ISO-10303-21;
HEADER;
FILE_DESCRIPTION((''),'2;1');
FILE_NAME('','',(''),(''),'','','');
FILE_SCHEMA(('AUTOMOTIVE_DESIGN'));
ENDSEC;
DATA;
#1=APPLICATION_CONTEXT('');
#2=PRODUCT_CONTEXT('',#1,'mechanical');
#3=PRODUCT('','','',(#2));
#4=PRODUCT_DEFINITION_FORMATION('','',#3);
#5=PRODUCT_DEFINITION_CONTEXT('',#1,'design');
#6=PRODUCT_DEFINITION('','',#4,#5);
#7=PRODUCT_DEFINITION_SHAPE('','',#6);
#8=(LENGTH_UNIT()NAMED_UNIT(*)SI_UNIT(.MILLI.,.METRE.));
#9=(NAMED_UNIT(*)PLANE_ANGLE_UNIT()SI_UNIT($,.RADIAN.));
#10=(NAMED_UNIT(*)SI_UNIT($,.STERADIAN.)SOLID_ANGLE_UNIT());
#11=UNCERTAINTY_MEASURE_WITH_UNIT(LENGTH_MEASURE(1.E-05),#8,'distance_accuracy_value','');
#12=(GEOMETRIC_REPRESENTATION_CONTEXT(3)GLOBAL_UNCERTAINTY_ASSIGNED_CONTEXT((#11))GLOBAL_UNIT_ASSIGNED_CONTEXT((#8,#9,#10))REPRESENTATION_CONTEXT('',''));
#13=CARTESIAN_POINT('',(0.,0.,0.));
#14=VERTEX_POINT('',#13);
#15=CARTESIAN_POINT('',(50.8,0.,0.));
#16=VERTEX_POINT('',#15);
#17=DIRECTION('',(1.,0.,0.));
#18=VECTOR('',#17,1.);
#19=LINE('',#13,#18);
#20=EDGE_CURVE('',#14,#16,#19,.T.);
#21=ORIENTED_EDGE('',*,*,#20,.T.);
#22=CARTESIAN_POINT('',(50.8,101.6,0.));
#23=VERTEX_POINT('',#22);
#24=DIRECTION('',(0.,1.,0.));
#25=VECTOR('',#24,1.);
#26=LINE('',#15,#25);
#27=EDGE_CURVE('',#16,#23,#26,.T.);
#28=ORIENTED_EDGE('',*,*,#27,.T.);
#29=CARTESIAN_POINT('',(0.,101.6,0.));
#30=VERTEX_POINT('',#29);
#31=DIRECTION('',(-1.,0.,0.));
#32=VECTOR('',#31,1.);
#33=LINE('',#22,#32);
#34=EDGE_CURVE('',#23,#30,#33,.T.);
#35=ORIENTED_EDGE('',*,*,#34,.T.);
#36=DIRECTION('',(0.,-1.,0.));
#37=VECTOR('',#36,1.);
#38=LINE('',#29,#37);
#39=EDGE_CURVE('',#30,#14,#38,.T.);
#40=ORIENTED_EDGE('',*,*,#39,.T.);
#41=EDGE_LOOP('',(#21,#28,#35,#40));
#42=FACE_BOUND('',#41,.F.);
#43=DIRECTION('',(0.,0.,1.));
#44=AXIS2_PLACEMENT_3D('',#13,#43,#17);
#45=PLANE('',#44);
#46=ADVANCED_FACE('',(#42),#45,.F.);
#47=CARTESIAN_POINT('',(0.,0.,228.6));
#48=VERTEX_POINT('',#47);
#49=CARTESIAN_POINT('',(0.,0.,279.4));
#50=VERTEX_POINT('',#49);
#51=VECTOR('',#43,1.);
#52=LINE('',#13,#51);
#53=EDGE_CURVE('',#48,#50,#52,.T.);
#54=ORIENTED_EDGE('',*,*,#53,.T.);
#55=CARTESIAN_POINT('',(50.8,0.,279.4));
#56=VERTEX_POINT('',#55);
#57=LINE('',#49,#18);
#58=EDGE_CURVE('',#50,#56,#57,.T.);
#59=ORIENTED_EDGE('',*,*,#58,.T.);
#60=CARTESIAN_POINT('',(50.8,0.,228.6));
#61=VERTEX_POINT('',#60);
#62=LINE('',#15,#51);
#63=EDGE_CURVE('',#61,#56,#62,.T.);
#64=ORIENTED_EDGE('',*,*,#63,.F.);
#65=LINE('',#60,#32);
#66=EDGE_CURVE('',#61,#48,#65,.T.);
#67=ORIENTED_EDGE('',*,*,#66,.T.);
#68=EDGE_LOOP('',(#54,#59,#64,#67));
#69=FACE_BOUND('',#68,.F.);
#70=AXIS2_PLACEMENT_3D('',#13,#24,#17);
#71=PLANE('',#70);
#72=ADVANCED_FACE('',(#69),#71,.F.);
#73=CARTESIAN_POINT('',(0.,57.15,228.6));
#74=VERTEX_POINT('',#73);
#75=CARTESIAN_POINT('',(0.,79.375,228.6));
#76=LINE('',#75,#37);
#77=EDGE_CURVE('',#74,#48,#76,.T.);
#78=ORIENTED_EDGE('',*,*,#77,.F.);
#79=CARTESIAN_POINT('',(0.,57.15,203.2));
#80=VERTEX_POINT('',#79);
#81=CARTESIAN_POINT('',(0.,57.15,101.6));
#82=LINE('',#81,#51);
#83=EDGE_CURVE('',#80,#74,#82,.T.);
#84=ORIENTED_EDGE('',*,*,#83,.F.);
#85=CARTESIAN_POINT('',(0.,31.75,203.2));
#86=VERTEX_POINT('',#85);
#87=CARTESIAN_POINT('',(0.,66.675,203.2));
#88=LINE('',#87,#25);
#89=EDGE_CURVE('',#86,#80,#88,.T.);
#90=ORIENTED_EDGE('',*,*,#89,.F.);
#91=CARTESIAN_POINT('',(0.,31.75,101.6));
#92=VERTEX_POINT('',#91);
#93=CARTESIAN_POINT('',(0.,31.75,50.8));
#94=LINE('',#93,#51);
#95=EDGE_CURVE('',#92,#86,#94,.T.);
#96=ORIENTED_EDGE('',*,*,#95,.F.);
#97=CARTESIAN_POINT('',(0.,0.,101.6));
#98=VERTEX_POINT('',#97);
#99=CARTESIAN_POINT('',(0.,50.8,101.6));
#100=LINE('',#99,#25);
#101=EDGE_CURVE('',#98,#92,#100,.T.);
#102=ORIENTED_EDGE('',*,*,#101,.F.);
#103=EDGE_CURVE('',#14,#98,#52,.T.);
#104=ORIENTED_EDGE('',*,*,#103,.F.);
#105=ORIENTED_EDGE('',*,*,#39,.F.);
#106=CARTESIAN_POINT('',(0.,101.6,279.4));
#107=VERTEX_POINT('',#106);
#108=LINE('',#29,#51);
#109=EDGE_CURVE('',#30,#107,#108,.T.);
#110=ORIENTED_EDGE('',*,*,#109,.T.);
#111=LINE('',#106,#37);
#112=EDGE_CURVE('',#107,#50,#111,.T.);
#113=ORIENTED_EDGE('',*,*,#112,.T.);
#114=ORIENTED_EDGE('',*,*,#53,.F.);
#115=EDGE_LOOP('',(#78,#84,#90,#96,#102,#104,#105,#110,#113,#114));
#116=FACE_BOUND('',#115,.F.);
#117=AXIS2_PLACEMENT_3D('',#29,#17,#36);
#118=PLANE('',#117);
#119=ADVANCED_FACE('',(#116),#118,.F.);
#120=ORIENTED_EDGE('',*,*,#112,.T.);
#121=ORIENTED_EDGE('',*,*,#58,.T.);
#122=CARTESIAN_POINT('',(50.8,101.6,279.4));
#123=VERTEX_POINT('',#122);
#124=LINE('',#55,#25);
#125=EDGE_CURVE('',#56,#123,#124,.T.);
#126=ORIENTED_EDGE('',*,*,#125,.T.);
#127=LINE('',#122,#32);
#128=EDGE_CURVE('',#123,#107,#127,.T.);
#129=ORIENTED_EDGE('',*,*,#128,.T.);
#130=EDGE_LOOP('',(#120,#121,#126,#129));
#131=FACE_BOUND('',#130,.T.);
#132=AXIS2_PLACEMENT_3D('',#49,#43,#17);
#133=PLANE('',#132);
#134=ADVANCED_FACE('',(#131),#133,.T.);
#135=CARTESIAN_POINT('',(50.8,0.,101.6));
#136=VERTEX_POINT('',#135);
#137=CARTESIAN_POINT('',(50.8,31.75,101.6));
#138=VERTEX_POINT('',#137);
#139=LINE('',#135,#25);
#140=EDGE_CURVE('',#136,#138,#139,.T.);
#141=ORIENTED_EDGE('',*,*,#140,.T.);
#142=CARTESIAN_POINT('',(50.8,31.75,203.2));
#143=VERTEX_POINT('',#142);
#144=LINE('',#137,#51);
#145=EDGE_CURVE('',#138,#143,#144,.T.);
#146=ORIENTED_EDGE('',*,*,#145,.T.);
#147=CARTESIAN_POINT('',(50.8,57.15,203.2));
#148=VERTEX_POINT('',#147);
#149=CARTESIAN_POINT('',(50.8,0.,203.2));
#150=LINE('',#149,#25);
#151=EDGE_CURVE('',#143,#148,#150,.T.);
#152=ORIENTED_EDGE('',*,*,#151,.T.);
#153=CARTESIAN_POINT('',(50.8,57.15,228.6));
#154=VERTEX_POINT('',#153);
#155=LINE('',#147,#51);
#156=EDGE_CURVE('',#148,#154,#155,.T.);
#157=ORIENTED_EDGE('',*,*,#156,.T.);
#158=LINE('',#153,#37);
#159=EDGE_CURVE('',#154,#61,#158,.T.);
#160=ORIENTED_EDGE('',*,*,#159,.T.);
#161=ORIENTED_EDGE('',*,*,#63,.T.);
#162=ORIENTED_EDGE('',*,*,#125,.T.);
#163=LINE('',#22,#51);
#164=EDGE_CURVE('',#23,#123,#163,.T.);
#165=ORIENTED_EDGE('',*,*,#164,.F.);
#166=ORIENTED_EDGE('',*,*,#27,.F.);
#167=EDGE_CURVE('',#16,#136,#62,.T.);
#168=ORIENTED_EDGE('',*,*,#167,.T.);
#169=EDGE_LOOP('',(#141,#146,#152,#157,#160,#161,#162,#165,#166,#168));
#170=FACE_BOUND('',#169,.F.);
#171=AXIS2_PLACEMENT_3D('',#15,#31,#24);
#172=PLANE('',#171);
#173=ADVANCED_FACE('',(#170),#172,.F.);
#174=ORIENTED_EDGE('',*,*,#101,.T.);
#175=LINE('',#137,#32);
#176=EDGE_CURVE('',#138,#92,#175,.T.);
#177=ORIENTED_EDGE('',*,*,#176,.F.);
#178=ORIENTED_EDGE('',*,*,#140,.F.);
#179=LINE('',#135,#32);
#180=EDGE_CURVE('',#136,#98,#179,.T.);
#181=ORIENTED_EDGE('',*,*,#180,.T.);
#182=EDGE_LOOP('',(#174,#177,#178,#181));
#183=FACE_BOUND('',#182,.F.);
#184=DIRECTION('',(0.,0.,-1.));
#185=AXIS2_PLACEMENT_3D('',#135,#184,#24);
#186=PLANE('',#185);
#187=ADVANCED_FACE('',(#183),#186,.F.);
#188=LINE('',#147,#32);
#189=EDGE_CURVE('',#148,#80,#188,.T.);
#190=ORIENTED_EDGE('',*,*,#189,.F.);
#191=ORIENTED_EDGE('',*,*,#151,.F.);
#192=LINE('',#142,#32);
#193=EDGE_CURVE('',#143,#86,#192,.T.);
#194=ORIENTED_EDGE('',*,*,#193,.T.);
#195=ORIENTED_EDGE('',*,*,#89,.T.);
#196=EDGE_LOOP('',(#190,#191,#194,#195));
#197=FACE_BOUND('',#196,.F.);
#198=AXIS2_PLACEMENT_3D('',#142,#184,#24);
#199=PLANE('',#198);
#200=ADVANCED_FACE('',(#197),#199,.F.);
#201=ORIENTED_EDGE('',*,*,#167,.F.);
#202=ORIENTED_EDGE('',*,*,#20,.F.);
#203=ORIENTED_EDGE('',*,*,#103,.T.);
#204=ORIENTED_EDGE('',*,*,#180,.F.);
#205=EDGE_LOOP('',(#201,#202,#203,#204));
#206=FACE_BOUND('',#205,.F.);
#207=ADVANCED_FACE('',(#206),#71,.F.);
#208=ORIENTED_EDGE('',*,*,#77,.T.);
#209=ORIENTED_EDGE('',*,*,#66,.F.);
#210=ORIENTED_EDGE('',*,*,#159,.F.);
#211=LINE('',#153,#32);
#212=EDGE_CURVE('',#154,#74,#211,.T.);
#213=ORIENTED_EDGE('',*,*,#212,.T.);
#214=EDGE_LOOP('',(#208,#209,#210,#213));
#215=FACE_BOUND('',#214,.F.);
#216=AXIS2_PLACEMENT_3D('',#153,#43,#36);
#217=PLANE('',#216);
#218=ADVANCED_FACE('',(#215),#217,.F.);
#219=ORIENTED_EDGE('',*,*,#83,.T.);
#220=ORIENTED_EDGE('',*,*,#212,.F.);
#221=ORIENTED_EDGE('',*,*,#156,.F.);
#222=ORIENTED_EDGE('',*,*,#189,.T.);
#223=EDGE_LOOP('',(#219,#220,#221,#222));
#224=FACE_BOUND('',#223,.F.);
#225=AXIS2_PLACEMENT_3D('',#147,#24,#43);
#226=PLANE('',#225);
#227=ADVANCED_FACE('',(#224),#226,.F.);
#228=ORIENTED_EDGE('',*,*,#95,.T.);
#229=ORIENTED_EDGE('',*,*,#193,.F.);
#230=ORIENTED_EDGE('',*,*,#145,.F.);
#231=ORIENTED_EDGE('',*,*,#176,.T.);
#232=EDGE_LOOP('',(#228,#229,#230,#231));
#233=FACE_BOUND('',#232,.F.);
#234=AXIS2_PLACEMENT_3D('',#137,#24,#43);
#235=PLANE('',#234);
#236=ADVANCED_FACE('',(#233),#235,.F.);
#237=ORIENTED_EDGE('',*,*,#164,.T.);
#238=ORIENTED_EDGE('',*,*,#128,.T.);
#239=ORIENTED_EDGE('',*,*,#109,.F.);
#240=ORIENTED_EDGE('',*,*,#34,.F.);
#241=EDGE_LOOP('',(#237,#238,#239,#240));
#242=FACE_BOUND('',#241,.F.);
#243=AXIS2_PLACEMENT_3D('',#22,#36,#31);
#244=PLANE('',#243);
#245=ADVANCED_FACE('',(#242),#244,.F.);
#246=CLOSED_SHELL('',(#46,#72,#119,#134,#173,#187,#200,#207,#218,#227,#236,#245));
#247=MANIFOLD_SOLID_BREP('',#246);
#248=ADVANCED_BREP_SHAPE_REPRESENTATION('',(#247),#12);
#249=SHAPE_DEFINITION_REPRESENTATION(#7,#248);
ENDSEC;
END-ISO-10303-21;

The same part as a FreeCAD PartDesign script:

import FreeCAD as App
import Part
import Sketcher

V = App.Vector
Q = App.Units.Quantity


def add_polygon(sketch, points):
    """Adds a closed chain of lines whose ends are joined by coincident constraints."""
    first, n = sketch.GeometryCount, len(points)
    for a, b in zip(points, points[1:] + points[:1]):
        sketch.addGeometry(Part.LineSegment(App.Vector(*a, 0), App.Vector(*b, 0)), False)
    for i in range(n):
        sketch.addConstraint(Sketcher.Constraint("Coincident", first + i, 2, first + (i + 1) % n, 1))

doc = App.newDocument("Part")
body = doc.addObject("PartDesign::Body", "Body")

# Sketch on XY plane
sketch1 = doc.addObject("Sketcher::SketchObject", "Sketch")
body.addObject(sketch1)
sketch1.AttachmentSupport = (doc.XY_Plane, [""])
sketch1.MapMode = "FlatFace"
add_polygon(sketch1, [(0, 102), (0, 0), (51, 0), (51, 102)])  # lines 0-3
sketch1.addConstraint(Sketcher.Constraint("Vertical", 0))
sketch1.addConstraint(Sketcher.Constraint("Horizontal", 1))
sketch1.addConstraint(Sketcher.Constraint("Vertical", 2))
sketch1.addConstraint(Sketcher.Constraint("Horizontal", 3))
sketch1.addConstraint(Sketcher.Constraint("Coincident", 0, 2, -1, 1))
sketch1.addConstraint(Sketcher.Constraint("DistanceX", 1, 1, 1, 2, Q("2 in")))
sketch1.addConstraint(Sketcher.Constraint("DistanceY", 0, 2, 0, 1, Q("4 in")))
pad1 = doc.addObject("PartDesign::Pad", "Pad")
body.addObject(pad1)
pad1.Profile = sketch1
pad1.Length = Q("11 in")

# Sketch on YZ plane
sketch2 = doc.addObject("Sketcher::SketchObject", "Sketch001")
body.addObject(sketch2)
sketch2.AttachmentSupport = (doc.YZ_Plane, [""])
sketch2.MapMode = "FlatFace"
sketch2.AttachmentOffset = App.Placement(V(0, 0, 2 * 25.4), App.Rotation())
add_polygon(sketch2, [(0, 102), (32, 102), (32, 203), (57, 203), (57, 229), (0, 229)])  # lines 0-5
sketch2.addConstraint(Sketcher.Constraint("Horizontal", 0))
sketch2.addConstraint(Sketcher.Constraint("Vertical", 1))
sketch2.addConstraint(Sketcher.Constraint("Horizontal", 2))
sketch2.addConstraint(Sketcher.Constraint("Vertical", 3))
sketch2.addConstraint(Sketcher.Constraint("Horizontal", 4))
sketch2.addConstraint(Sketcher.Constraint("Vertical", 5))
sketch2.addConstraint(Sketcher.Constraint("PointOnObject", 4, 2, -2))
sketch2.addConstraint(Sketcher.Constraint("Equal", 2, 3))
sketch2.addConstraint(Sketcher.Constraint("DistanceX", 2, 1, 2, 2, Q("1 in")))
sketch2.addConstraint(Sketcher.Constraint("DistanceY", 1, 1, 1, 2, Q("4 in")))
sketch2.addConstraint(Sketcher.Constraint("DistanceY", -1, 1, 0, 2, Q("4 in")))
sketch2.addConstraint(Sketcher.Constraint("DistanceX", 0, 1, 0, 2, Q("1.25 in")))
pocket1 = doc.addObject("PartDesign::Pocket", "Pocket")
body.addObject(pocket1)
pocket1.Profile = sketch2
pocket1.Length = Q("11 in")

doc.recompute()
